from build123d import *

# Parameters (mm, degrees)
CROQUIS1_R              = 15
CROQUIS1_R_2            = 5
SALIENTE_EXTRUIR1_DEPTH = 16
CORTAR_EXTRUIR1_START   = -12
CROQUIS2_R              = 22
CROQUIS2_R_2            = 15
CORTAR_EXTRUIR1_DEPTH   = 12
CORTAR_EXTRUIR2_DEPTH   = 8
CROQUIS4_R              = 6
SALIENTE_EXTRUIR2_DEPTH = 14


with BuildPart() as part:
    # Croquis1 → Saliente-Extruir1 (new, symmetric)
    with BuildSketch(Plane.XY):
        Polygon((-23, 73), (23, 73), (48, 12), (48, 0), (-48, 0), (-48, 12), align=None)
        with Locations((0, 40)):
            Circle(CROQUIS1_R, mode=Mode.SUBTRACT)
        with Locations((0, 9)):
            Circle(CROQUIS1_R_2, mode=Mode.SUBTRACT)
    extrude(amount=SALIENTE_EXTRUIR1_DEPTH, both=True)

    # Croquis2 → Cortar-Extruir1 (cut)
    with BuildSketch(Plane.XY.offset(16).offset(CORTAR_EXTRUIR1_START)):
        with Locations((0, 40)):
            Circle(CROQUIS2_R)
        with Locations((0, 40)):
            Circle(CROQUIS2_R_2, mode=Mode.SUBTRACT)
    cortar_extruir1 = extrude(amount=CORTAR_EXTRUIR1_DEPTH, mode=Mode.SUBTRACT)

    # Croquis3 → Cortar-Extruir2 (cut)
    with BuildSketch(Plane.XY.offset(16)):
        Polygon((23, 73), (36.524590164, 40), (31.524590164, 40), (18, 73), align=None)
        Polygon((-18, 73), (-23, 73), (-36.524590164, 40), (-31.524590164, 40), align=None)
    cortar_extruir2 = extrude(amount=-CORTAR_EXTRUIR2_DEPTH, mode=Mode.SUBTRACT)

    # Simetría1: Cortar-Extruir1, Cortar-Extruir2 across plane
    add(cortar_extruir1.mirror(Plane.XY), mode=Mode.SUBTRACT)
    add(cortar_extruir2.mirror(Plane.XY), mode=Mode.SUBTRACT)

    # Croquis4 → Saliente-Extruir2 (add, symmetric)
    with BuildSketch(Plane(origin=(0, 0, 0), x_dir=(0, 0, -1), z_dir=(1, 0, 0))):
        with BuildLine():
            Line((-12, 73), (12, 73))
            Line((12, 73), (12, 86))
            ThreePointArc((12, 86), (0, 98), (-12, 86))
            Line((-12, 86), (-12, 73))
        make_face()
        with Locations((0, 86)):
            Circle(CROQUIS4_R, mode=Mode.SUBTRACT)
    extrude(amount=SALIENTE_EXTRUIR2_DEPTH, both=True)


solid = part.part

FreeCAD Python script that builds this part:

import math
import FreeCAD as App
import Part
import Sketcher
Q = App.Units.Quantity

doc = App.newDocument("Part")
params = doc.addObject("Spreadsheet::Sheet", "Params")
for row, (alias, value) in enumerate([
    ("sketch1_diameter", "10 mm"),
    ("sketch1_diameter2", "30 mm"),
    ("sketch1_width", "46 mm"),
    ("sketch1_width2", "96 mm"),
    ("sketch1_height", "12 mm"),
    ("pad1_length", "32 mm"),
    ("sketch2_diameter", "44 mm"),
    ("sketch2_diameter2", "30 mm"),
    ("pocket1_length", "12 mm"),
    ("sketch3_width", "5 mm"),
    ("pocket2_length", "8 mm"),
    ("sketch4_diameter", "12 mm"),
    ("sketch4_radius", "12 mm"),
    ("sketch4_width", "13 mm"),
    ("pad2_length", "28 mm"),
], start=1):
    params.set(f"A{row}", alias)
    params.set(f"B{row}", "=" + value)
    params.setAlias(f"B{row}", alias)

body = doc.addObject("PartDesign::Body", "Body")

sketch1 = doc.addObject("Sketcher::SketchObject", "Sketch")
body.addObject(sketch1)
sketch1.AttachmentSupport = (doc.XY_Plane, [""])
sketch1.MapMode = "FlatFace"
sketch1.addGeometry(Part.LineSegment(App.Vector(23, 73, 0), App.Vector(-23, 73, 0)), False)
sketch1.addGeometry(Part.LineSegment(App.Vector(-23, 73, 0), App.Vector(-48, 12, 0)), False)
sketch1.addGeometry(Part.LineSegment(App.Vector(-48, 12, 0), App.Vector(-48, 0, 0)), False)
sketch1.addGeometry(Part.LineSegment(App.Vector(-48, 0, 0), App.Vector(48, 0, 0)), False)
sketch1.addGeometry(Part.LineSegment(App.Vector(48, 0, 0), App.Vector(48, 12, 0)), False)
sketch1.addGeometry(Part.LineSegment(App.Vector(48, 12, 0), App.Vector(23, 73, 0)), False)
sketch1.addGeometry(Part.Circle(App.Vector(0, 9, 0), App.Vector(0, 0, 1), 5), False)
sketch1.addGeometry(Part.Circle(App.Vector(0, 40, 0), App.Vector(0, 0, 1), 15), False)
sketch1.addConstraint(Sketcher.Constraint("Coincident", 0, 2, 1, 1))
sketch1.addConstraint(Sketcher.Constraint("Coincident", 1, 2, 2, 1))
sketch1.addConstraint(Sketcher.Constraint("Coincident", 2, 2, 3, 1))
sketch1.addConstraint(Sketcher.Constraint("Coincident", 3, 2, 4, 1))
sketch1.addConstraint(Sketcher.Constraint("Coincident", 4, 2, 5, 1))
sketch1.addConstraint(Sketcher.Constraint("Coincident", 5, 2, 0, 1))
sketch1.addConstraint(Sketcher.Constraint("Horizontal", 0))
sketch1.addConstraint(Sketcher.Constraint("Vertical", 2))
sketch1.addConstraint(Sketcher.Constraint("Horizontal", 3))
sketch1.addConstraint(Sketcher.Constraint("Vertical", 4))
sketch1.addConstraint(Sketcher.Constraint("Symmetric", 2, 2, 3, 2, -1, 1))
sketch1.addConstraint(Sketcher.Constraint("PointOnObject", 6, 3, -2))
sketch1.addConstraint(Sketcher.Constraint("PointOnObject", 7, 3, -2))
sketch1.addConstraint(Sketcher.Constraint("Horizontal", 1, 2, 4, 2))
sketch1.addConstraint(Sketcher.Constraint("Equal", 1, 5))
sketch1.addConstraint(Sketcher.Constraint("Diameter", 6, Q("10 mm")))
sketch1.addConstraint(Sketcher.Constraint("Diameter", 7, Q("30 mm")))
sketch1.addConstraint(Sketcher.Constraint("DistanceX", 0, 2, 0, 1, Q("46 mm")))
sketch1.addConstraint(Sketcher.Constraint("DistanceX", 3, 1, 3, 2, Q("96 mm")))
sketch1.addConstraint(Sketcher.Constraint("DistanceY", 2, 2, 2, 1, Q("12 mm")))
sketch1.addConstraint(Sketcher.Constraint("DistanceY", -1, 1, 6, 3, Q("9 mm")))
sketch1.addConstraint(Sketcher.Constraint("DistanceY", -1, 1, 7, 3, Q("40 mm")))
sketch1.addConstraint(Sketcher.Constraint("DistanceY", -1, 1, 0, 2, Q("73 mm")))
sketch1.setExpression("Constraints[15]", "Params.sketch1_diameter")
sketch1.setExpression("Constraints[16]", "Params.sketch1_diameter2")
sketch1.setExpression("Constraints[17]", "Params.sketch1_width")
sketch1.setExpression("Constraints[18]", "Params.sketch1_width2")
sketch1.setExpression("Constraints[19]", "Params.sketch1_height")
pad1 = doc.addObject("PartDesign::Pad", "Pad")
body.addObject(pad1)
pad1.Profile = sketch1
pad1.setExpression("Length", "Params.pad1_length")
pad1.Midplane = True

sketch2 = doc.addObject("Sketcher::SketchObject", "Sketch001")
body.addObject(sketch2)
sketch2.AttachmentSupport = (doc.XY_Plane, [""])
sketch2.MapMode = "FlatFace"
sketch2.AttachmentOffset = App.Placement(App.Vector(0, 0, 4), App.Rotation())
sketch2.addGeometry(Part.Circle(App.Vector(0, 40, 0), App.Vector(0, 0, 1), 22), False)
sketch2.addGeometry(Part.Circle(App.Vector(0, 40, 0), App.Vector(0, 0, 1), 15), False)
sketch2.addConstraint(Sketcher.Constraint("Coincident", 1, 3, 0, 3))
sketch2.addConstraint(Sketcher.Constraint("PointOnObject", 0, 3, -2))
sketch2.addConstraint(Sketcher.Constraint("Diameter", 0, Q("44 mm")))
sketch2.addConstraint(Sketcher.Constraint("Diameter", 1, Q("30 mm")))
sketch2.addConstraint(Sketcher.Constraint("DistanceY", -1, 1, 0, 3, Q("40 mm")))
sketch2.setExpression("Constraints[2]", "Params.sketch2_diameter")
sketch2.setExpression("Constraints[3]", "Params.sketch2_diameter2")
pocket1 = doc.addObject("PartDesign::Pocket", "Pocket")
body.addObject(pocket1)
pocket1.Profile = sketch2
pocket1.setExpression("Length", "Params.pocket1_length")
pocket1.Reversed = True

sketch3 = doc.addObject("Sketcher::SketchObject", "Sketch002")
body.addObject(sketch3)
sketch3.AttachmentSupport = (doc.XY_Plane, [""])
sketch3.MapMode = "FlatFace"
sketch3.AttachmentOffset = App.Placement(App.Vector(0, 0, 16), App.Rotation())
sketch3.addGeometry(Part.LineSegment(App.Vector(37, 40, 0), App.Vector(23, 73, 0)), False)
sketch3.addGeometry(Part.LineSegment(App.Vector(23, 73, 0), App.Vector(18, 73, 0)), False)
sketch3.addGeometry(Part.LineSegment(App.Vector(18, 73, 0), App.Vector(32, 40, 0)), False)
sketch3.addGeometry(Part.LineSegment(App.Vector(32, 40, 0), App.Vector(37, 40, 0)), False)
sketch3.addGeometry(Part.LineSegment(App.Vector(-18, 73, 0), App.Vector(-23, 73, 0)), False)
sketch3.addGeometry(Part.LineSegment(App.Vector(-23, 73, 0), App.Vector(-37, 40, 0)), False)
sketch3.addGeometry(Part.LineSegment(App.Vector(-37, 40, 0), App.Vector(-32, 40, 0)), False)
sketch3.addGeometry(Part.LineSegment(App.Vector(-32, 40, 0), App.Vector(-18, 73, 0)), False)
sketch3.addConstraint(Sketcher.Constraint("Coincident", 0, 2, 1, 1))
sketch3.addConstraint(Sketcher.Constraint("Coincident", 1, 2, 2, 1))
sketch3.addConstraint(Sketcher.Constraint("Coincident", 2, 2, 3, 1))
sketch3.addConstraint(Sketcher.Constraint("Coincident", 3, 2, 0, 1))
sketch3.addConstraint(Sketcher.Constraint("Coincident", 4, 2, 5, 1))
sketch3.addConstraint(Sketcher.Constraint("Coincident", 5, 2, 6, 1))
sketch3.addConstraint(Sketcher.Constraint("Coincident", 6, 2, 7, 1))
sketch3.addConstraint(Sketcher.Constraint("Coincident", 7, 2, 4, 1))
sketch3.addConstraint(Sketcher.Constraint("Horizontal", 1))
sketch3.addConstraint(Sketcher.Constraint("Horizontal", 3))
sketch3.addConstraint(Sketcher.Constraint("Horizontal", 4))
sketch3.addConstraint(Sketcher.Constraint("Horizontal", 6))
sketch3.addConstraint(Sketcher.Constraint("Symmetric", 0, 2, 4, 2, -2))
sketch3.addConstraint(Sketcher.Constraint("Symmetric", 3, 2, 5, 2, -2))
sketch3.addConstraint(Sketcher.Constraint("Parallel", 0, 2))
sketch3.addConstraint(Sketcher.Constraint("Parallel", 5, 7))
sketch3.addConstraint(Sketcher.Constraint("Equal", 3, 4))
sketch3.addConstraint(Sketcher.Constraint("DistanceX", 1, 2, 1, 1, Q("5 mm")))
sketch3.addConstraint(Sketcher.Constraint("DistanceX", -1, 1, 0, 2, Q("23 mm")))
sketch3.addConstraint(Sketcher.Constraint("DistanceY", -1, 1, 0, 2, Q("73 mm")))
sketch3.addConstraint(Sketcher.Constraint("DistanceY", -1, 1, 2, 2, Q("40 mm")))
sketch3.addConstraint(Sketcher.Constraint("Distance", 0, Q("35.663911 mm")))
sketch3.setExpression("Constraints[17]", "Params.sketch3_width")
pocket2 = doc.addObject("PartDesign::Pocket", "Pocket001")
body.addObject(pocket2)
pocket2.Profile = sketch3
pocket2.setExpression("Length", "Params.pocket2_length")
doc.recompute()

mirrored = doc.addObject("PartDesign::Mirrored", "Mirrored")
body.addObject(mirrored)
mirrored.Originals = [pocket1, pocket2]
mirrored.MirrorPlane = (doc.XY_Plane, [""])
body.Tip = mirrored

sketch4 = doc.addObject("Sketcher::SketchObject", "Sketch003")
body.addObject(sketch4)
sketch4.AttachmentSupport = (doc.YZ_Plane, [""])
sketch4.MapMode = "FlatFace"
sketch4.addGeometry(Part.LineSegment(App.Vector(73, 12, 0), App.Vector(73, -12, 0)), False)
sketch4.addGeometry(Part.LineSegment(App.Vector(73, -12, 0), App.Vector(86, -12, 0)), False)
sketch4.addGeometry(Part.ArcOfCircle(Part.Circle(App.Vector(86, 0, 0), App.Vector(0, 0, 1), 12), math.radians(-90), math.radians(90)), False)
sketch4.addGeometry(Part.LineSegment(App.Vector(86, 12, 0), App.Vector(73, 12, 0)), False)
sketch4.addGeometry(Part.Circle(App.Vector(86, 0, 0), App.Vector(0, 0, 1), 6), False)
sketch4.addConstraint(Sketcher.Constraint("Coincident", 0, 2, 1, 1))
sketch4.addConstraint(Sketcher.Constraint("Tangent", 1, 2, 2, 1))
sketch4.addConstraint(Sketcher.Constraint("Tangent", 2, 2, 3, 1))
sketch4.addConstraint(Sketcher.Constraint("Coincident", 3, 2, 0, 1))
sketch4.addConstraint(Sketcher.Constraint("Vertical", 0))
sketch4.addConstraint(Sketcher.Constraint("Horizontal", 1))
sketch4.addConstraint(Sketcher.Constraint("Horizontal", 3))
sketch4.addConstraint(Sketcher.Constraint("Coincident", 4, 3, 2, 3))
sketch4.addConstraint(Sketcher.Constraint("PointOnObject", 2, 3, -1))
sketch4.addConstraint(Sketcher.Constraint("Diameter", 4, Q("12 mm")))
sketch4.addConstraint(Sketcher.Constraint("Radius", 2, Q("12 mm")))
sketch4.addConstraint(Sketcher.Constraint("DistanceX", 1, 1, 1, 2, Q("13 mm")))
sketch4.addConstraint(Sketcher.Constraint("DistanceX", -1, 1, 2, 3, Q("86 mm")))
sketch4.setExpression("Constraints[9]", "Params.sketch4_diameter")
sketch4.setExpression("Constraints[10]", "Params.sketch4_radius")
sketch4.setExpression("Constraints[11]", "Params.sketch4_width")
pad2 = doc.addObject("PartDesign::Pad", "Pad001")
body.addObject(pad2)
pad2.Profile = sketch4
pad2.setExpression("Length", "Params.pad2_length")
pad2.Midplane = True

doc.recompute()
